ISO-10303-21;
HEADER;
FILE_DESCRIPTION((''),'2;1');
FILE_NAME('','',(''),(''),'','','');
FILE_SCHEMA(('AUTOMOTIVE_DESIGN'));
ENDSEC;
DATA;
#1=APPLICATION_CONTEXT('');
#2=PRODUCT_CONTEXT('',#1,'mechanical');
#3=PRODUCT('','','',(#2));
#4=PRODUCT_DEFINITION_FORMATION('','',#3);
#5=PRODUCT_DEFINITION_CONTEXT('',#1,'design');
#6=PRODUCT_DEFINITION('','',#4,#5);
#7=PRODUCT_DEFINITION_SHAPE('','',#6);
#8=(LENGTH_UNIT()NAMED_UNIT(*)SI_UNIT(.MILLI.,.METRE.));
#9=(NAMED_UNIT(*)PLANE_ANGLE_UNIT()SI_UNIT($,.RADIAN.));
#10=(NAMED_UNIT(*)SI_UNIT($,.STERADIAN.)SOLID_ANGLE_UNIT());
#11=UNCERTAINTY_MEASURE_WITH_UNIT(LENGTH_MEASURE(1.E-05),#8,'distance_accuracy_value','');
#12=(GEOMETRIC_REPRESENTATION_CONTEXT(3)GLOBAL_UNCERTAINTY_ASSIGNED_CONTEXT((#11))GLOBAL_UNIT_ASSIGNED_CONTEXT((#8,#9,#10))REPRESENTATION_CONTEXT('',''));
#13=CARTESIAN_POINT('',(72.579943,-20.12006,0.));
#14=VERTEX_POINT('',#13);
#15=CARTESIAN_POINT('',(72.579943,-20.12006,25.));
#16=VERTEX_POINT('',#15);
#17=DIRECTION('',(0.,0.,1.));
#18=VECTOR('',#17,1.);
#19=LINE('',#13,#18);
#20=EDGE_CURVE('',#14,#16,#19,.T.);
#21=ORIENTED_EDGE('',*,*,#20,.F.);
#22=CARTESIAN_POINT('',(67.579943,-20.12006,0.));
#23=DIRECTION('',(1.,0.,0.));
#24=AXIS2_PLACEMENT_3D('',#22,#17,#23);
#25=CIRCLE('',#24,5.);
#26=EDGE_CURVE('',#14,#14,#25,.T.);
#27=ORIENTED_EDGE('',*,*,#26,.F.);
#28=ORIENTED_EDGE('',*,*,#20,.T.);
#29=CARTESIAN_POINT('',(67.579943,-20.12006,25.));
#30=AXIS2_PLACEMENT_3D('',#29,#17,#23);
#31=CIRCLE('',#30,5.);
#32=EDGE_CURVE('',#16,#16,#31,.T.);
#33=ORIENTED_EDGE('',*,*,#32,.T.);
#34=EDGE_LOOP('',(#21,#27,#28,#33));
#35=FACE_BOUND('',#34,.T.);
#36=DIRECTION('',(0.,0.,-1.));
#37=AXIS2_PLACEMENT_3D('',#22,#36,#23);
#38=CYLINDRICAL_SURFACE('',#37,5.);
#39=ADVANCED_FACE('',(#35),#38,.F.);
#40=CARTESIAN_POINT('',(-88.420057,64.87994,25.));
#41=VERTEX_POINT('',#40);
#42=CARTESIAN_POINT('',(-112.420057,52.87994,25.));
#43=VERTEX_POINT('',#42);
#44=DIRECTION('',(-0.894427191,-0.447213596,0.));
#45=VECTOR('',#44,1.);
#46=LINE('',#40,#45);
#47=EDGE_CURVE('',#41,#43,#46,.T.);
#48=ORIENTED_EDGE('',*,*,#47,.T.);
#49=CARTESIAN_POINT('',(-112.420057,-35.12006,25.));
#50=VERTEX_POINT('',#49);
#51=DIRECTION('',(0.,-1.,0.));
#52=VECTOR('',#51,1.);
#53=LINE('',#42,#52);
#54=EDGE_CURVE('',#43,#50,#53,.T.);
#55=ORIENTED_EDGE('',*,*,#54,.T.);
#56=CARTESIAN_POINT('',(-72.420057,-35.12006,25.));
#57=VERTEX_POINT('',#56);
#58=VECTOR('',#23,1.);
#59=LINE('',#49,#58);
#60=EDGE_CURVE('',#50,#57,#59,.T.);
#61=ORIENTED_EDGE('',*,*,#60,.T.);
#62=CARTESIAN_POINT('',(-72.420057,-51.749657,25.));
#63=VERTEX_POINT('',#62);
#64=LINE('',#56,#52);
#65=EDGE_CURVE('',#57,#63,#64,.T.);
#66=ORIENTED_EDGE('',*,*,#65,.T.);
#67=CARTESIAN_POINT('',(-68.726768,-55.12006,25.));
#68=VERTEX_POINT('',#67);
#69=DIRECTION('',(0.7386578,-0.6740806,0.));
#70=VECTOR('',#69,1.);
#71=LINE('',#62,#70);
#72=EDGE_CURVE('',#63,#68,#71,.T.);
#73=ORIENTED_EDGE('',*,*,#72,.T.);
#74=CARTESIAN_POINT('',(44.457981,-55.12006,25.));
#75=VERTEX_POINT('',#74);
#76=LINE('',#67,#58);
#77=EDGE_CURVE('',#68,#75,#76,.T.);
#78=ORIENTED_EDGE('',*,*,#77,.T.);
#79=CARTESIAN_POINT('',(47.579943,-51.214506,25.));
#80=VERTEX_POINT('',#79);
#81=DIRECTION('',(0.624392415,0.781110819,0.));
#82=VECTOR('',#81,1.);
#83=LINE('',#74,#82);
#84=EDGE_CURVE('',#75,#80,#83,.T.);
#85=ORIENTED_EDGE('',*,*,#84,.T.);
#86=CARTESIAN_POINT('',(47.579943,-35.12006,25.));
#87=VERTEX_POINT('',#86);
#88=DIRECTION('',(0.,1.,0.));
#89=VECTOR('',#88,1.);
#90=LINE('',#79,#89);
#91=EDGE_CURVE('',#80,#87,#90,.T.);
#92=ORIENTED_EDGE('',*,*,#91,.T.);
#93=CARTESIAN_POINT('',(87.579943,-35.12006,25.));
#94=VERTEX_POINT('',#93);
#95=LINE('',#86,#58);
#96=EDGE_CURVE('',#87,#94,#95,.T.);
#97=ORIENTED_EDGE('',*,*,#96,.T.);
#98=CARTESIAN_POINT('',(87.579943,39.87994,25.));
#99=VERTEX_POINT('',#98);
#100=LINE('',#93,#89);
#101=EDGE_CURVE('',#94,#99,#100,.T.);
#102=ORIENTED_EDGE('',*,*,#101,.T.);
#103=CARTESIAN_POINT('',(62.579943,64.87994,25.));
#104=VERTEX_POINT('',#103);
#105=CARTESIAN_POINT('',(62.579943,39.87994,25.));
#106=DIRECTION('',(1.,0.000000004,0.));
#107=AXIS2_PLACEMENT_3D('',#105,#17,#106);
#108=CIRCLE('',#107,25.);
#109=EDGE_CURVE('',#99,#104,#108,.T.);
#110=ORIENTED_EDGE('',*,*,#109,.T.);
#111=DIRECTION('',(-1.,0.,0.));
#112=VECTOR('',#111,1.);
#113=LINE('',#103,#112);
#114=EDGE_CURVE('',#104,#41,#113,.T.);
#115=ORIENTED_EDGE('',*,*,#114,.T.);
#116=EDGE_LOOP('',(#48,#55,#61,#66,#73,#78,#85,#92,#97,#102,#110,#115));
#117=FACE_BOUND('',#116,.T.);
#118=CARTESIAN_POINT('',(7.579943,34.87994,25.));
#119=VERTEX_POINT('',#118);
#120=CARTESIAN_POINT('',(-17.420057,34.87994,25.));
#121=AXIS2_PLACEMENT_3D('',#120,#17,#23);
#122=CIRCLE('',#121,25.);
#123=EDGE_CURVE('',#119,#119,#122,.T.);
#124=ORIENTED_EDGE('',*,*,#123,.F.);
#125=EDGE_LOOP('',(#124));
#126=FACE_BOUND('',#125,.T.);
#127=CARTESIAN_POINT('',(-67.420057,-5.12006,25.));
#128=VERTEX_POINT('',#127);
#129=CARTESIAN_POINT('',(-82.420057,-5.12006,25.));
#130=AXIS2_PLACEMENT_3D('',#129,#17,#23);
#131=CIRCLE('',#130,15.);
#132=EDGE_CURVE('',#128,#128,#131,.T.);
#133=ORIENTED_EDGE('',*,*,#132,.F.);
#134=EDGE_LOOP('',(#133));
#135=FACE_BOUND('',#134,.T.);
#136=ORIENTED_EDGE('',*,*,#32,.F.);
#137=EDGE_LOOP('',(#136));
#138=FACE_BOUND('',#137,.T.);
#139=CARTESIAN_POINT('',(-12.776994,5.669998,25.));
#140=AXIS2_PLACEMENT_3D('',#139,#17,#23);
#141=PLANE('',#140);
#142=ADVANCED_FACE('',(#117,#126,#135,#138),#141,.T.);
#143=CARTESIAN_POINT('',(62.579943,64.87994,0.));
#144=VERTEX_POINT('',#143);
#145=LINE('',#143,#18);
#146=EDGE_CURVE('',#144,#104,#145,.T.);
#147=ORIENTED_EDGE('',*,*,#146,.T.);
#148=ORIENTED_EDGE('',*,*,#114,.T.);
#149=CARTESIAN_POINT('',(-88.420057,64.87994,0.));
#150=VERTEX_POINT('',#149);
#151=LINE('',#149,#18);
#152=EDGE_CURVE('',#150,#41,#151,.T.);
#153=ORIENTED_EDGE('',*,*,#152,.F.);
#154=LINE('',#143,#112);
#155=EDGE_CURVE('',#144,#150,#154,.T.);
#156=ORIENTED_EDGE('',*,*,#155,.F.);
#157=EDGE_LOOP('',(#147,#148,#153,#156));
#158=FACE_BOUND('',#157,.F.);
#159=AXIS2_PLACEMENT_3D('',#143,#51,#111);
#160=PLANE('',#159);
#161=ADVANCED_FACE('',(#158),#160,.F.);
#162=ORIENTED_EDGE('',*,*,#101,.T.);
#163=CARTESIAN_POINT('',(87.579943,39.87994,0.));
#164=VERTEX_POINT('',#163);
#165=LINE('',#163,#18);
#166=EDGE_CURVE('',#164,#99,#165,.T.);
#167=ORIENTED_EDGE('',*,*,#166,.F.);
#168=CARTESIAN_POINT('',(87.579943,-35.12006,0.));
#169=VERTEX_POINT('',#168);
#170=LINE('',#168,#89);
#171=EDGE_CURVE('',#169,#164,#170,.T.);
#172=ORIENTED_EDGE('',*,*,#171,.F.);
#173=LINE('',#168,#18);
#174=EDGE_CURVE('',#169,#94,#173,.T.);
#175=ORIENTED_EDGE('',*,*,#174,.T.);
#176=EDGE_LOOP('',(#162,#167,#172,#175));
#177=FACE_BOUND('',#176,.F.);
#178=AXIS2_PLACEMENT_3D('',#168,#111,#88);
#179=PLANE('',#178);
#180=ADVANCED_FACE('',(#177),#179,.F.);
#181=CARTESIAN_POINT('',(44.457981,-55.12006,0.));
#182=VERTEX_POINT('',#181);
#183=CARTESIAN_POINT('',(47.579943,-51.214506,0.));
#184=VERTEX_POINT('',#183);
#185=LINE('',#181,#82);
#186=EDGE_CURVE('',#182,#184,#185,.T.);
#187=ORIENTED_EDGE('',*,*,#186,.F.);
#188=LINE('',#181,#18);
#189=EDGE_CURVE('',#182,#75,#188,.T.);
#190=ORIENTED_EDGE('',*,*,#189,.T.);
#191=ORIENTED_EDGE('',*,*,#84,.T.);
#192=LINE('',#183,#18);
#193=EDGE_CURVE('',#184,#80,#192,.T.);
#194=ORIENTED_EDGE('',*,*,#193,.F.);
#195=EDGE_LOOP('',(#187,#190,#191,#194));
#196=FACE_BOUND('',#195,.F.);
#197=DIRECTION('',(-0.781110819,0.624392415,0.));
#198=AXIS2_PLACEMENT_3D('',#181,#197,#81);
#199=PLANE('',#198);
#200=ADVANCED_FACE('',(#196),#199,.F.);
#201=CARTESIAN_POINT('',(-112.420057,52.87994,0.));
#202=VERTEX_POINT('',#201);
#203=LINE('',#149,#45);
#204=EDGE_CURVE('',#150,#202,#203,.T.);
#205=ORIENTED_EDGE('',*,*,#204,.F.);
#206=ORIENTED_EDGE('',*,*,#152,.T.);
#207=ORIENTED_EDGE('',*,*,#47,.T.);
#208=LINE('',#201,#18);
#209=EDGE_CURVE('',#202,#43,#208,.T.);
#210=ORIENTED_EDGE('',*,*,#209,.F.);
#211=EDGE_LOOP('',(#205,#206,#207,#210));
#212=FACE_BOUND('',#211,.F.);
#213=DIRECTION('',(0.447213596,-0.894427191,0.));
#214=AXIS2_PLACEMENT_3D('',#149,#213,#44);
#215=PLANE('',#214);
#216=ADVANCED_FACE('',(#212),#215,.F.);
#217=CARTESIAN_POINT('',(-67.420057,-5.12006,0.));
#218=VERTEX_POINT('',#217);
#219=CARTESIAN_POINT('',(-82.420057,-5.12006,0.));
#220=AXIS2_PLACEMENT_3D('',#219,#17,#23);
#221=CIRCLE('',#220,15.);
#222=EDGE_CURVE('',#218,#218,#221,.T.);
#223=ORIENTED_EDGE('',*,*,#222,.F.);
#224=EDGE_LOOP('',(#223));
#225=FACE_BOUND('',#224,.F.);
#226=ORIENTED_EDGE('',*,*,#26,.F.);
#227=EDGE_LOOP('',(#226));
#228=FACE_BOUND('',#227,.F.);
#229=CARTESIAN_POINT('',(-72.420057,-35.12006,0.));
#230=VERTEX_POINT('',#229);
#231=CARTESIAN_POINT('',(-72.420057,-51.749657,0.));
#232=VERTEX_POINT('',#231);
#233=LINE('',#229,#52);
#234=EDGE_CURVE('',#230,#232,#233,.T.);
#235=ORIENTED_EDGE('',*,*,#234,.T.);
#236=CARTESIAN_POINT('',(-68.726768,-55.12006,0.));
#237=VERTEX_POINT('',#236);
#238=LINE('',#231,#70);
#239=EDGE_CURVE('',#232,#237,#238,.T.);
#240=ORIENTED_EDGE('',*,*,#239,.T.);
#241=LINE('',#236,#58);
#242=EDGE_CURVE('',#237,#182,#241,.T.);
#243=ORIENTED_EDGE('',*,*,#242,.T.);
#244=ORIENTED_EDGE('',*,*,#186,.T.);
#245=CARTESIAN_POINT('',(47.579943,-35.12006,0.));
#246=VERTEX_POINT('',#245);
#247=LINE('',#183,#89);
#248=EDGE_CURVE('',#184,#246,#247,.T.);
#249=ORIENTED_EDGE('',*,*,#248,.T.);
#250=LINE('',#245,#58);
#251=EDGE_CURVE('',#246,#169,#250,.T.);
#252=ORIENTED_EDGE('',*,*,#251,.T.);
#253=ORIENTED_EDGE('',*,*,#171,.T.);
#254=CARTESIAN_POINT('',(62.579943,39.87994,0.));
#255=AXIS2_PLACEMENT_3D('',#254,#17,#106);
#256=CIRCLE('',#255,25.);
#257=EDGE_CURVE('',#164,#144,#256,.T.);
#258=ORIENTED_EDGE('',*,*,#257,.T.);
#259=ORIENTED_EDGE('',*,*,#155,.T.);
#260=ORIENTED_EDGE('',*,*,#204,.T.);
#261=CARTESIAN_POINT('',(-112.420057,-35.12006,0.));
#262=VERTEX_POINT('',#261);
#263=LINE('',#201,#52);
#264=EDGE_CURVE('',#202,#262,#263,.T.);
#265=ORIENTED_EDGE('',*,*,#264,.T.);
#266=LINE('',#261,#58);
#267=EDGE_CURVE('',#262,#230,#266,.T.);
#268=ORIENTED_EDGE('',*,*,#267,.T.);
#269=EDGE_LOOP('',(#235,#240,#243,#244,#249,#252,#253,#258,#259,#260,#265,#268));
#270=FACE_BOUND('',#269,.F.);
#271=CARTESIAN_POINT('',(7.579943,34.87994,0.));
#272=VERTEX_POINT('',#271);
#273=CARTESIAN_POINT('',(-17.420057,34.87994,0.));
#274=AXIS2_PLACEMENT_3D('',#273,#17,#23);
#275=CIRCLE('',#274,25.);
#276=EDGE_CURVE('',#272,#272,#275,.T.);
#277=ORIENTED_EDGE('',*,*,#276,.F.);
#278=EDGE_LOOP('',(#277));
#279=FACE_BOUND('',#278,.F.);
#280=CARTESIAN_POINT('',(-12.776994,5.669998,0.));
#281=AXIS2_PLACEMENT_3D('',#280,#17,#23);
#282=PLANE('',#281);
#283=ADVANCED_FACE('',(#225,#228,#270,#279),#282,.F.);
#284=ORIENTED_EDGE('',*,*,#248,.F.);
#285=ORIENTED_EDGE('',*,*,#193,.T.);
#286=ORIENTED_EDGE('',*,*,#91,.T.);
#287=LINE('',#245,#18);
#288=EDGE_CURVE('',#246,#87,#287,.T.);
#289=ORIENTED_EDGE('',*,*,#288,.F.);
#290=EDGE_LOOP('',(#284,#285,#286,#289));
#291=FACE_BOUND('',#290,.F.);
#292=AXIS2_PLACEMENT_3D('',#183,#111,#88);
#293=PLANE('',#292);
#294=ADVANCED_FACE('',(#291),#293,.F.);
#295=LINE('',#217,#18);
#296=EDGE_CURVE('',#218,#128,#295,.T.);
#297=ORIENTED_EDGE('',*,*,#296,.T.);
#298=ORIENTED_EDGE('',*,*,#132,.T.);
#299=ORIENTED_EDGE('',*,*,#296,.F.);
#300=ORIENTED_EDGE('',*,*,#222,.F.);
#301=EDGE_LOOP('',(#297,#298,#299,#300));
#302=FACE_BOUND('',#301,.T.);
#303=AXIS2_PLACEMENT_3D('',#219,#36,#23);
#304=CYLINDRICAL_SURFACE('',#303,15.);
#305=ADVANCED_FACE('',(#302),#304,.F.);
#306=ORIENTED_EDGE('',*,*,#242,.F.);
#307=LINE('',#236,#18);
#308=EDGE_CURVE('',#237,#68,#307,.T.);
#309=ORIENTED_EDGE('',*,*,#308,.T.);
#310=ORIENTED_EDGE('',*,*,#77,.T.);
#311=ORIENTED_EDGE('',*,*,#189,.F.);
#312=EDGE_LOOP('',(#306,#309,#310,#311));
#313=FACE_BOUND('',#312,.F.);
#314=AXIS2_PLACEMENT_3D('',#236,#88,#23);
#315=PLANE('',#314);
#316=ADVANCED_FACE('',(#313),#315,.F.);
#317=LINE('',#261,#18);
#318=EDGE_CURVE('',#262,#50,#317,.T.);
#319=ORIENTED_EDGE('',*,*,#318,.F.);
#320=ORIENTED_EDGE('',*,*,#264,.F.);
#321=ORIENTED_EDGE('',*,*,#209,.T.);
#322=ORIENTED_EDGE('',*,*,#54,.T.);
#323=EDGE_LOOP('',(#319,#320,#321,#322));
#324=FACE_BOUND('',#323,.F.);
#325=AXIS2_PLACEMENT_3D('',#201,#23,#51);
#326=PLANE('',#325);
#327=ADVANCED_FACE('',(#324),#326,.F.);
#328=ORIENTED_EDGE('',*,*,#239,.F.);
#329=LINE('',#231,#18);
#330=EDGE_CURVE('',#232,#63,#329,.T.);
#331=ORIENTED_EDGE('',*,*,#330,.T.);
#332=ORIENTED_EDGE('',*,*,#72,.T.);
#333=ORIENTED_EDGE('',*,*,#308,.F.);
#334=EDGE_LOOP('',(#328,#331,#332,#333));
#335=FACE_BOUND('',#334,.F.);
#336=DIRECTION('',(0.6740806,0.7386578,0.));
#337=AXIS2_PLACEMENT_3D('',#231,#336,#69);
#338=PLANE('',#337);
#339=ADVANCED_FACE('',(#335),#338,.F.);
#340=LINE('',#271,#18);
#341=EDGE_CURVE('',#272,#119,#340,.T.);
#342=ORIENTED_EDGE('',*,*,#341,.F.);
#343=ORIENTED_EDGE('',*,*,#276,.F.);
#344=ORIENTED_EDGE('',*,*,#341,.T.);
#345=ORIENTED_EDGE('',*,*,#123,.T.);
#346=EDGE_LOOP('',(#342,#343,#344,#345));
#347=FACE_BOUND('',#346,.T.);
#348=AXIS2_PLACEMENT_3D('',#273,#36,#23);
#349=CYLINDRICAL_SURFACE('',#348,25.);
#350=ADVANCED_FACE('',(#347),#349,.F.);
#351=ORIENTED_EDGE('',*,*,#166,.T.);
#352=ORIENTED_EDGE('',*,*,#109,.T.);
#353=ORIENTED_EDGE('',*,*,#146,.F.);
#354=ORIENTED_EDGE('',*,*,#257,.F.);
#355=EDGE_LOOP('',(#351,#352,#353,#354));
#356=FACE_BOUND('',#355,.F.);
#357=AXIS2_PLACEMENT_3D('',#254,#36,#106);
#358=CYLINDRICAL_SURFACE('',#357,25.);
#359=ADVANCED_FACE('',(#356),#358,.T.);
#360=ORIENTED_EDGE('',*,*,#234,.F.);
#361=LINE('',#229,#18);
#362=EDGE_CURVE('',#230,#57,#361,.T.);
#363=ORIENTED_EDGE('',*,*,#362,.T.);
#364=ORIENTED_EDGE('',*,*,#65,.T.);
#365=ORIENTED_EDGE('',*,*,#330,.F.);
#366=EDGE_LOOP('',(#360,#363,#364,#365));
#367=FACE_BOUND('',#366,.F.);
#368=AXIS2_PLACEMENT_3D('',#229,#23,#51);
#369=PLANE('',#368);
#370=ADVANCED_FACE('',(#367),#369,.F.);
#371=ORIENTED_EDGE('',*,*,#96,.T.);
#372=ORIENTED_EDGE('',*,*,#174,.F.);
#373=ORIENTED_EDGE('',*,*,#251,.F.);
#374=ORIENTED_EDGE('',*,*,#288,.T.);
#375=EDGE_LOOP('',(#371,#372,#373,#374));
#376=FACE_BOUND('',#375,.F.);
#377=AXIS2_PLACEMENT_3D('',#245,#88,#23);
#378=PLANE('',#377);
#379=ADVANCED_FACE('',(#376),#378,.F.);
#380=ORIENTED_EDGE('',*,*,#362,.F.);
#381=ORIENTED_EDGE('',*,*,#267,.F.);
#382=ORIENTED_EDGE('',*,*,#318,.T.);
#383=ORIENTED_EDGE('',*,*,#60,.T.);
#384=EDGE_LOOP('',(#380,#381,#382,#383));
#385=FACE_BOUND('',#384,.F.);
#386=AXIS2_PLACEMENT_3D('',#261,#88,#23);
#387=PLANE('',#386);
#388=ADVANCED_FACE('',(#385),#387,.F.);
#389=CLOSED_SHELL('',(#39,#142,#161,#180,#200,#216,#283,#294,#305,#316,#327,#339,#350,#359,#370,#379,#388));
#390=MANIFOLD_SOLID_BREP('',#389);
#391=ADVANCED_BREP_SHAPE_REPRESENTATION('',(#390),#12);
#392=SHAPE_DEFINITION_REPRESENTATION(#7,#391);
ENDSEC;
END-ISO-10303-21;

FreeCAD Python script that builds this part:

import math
import FreeCAD as App
import Part
import Sketcher
Q = App.Units.Quantity

doc = App.newDocument("Part")
body = doc.addObject("PartDesign::Body", "Body")

# Sketch on XY plane
sketch1 = body.newObject("Sketcher::SketchObject", "Sketch")
sketch1.AttachmentSupport = (doc.getObject("XY_Plane"), [""])
sketch1.MapMode = "FlatFace"
sketch1.addGeometry([
    Part.LineSegment(App.Vector(-88.4, 64.9, 0), App.Vector(-112.4, 52.9, 0)),  # 0
    Part.LineSegment(App.Vector(-112.4, 52.9, 0), App.Vector(-112.4, -35.1, 0)),  # 1
    Part.LineSegment(App.Vector(-112.4, -35.1, 0), App.Vector(-72.4, -35.1, 0)),  # 2
    Part.LineSegment(App.Vector(-72.4, -35.1, 0), App.Vector(-72.4, -51.7, 0)),  # 3
    Part.LineSegment(App.Vector(-72.4, -51.7, 0), App.Vector(-68.7, -55.1, 0)),  # 4
    Part.LineSegment(App.Vector(-68.7, -55.1, 0), App.Vector(44.5, -55.1, 0)),  # 5
    Part.LineSegment(App.Vector(44.5, -55.1, 0), App.Vector(47.6, -51.2, 0)),  # 6
    Part.LineSegment(App.Vector(47.6, -51.2, 0), App.Vector(47.6, -35.1, 0)),  # 7
    Part.LineSegment(App.Vector(47.6, -35.1, 0), App.Vector(87.6, -35.1, 0)),  # 8
    Part.LineSegment(App.Vector(87.6, -35.1, 0), App.Vector(87.6, 39.9, 0)),  # 9
    Part.ArcOfCircle(Part.Circle(App.Vector(62.6, 39.9, 0), App.Vector(0, 0, 1), 25), math.radians(0), math.radians(90)),  # 10
    Part.LineSegment(App.Vector(62.6, 64.9, 0), App.Vector(-88.4, 64.9, 0)),  # 11
    Part.Circle(App.Vector(-82.4, -5.1, 0), App.Vector(0, 0, 1), 15),  # 12
    Part.Circle(App.Vector(67.6, -20.1, 0), App.Vector(0, 0, 1), 5),  # 13
    Part.Circle(App.Vector(-17.4, 34.9, 0), App.Vector(0, 0, 1), 25),  # 14
], False)
sketch1.addConstraint([
    Sketcher.Constraint("Coincident", 0, 2, 1, 1),
    Sketcher.Constraint("Coincident", 1, 2, 2, 1),
    Sketcher.Constraint("Coincident", 2, 2, 3, 1),
    Sketcher.Constraint("Coincident", 3, 2, 4, 1),
    Sketcher.Constraint("Coincident", 4, 2, 5, 1),
    Sketcher.Constraint("Coincident", 5, 2, 6, 1),
    Sketcher.Constraint("Coincident", 6, 2, 7, 1),
    Sketcher.Constraint("Coincident", 7, 2, 8, 1),
    Sketcher.Constraint("Coincident", 8, 2, 9, 1),
    Sketcher.Constraint("Tangent", 9, 2, 10, 1),
    Sketcher.Constraint("Tangent", 10, 2, 11, 1),
    Sketcher.Constraint("Coincident", 11, 2, 0, 1),
    Sketcher.Constraint("Vertical", 1),
    Sketcher.Constraint("Horizontal", 2),
    Sketcher.Constraint("Vertical", 3),
    Sketcher.Constraint("Horizontal", 5),
    Sketcher.Constraint("Vertical", 7),
    Sketcher.Constraint("Horizontal", 8),
    Sketcher.Constraint("Vertical", 9),
    Sketcher.Constraint("Horizontal", 11),
    Sketcher.Constraint("Equal", 10, 14),
    Sketcher.Constraint("Horizontal", 2, 2, 7, 2),
    Sketcher.Constraint("Equal", 2, 8),
    Sketcher.Constraint("Equal", 4, 6),
    Sketcher.Constraint("Diameter", 12, Q("30 mm")),
    Sketcher.Constraint("Diameter", 13, Q("10 mm")),
    Sketcher.Constraint("Diameter", 14, Q("50 mm")),
    Sketcher.Constraint("DistanceX", 2, 1, 2, 2, Q("40 mm")),
    Sketcher.Constraint("DistanceX", 11, 2, 11, 1, Q("151 mm")),
    Sketcher.Constraint("DistanceY", 1, 2, 1, 1, Q("88 mm")),
    Sketcher.Constraint("DistanceY", 9, 1, 9, 2, Q("75 mm")),
    Sketcher.Constraint("Distance", 4, Q("5 mm")),
    Sketcher.Constraint("DistanceX", 12, 3, 10, 3, Q("145 mm")),
    Sketcher.Constraint("DistanceY", 12, 3, 10, 3, Q("45 mm")),
    Sketcher.Constraint("DistanceX", 10, 3, 13, 3, Q("5 mm")),
    Sketcher.Constraint("DistanceY", 13, 3, 10, 3, Q("60 mm")),
    Sketcher.Constraint("DistanceX", 12, 3, 14, 3, Q("65 mm")),
    Sketcher.Constraint("DistanceY", 12, 3, 14, 3, Q("40 mm")),
    Sketcher.Constraint("DistanceX", 0, 2, 12, 3, Q("30 mm")),
    Sketcher.Constraint("DistanceY", 4, 2, 2, 2, Q("20 mm")),
    Sketcher.Constraint("DistanceX", 5, 1, 5, 2, Q("113.184749 mm")),
    Sketcher.Constraint("DistanceY", 3, 2, 3, 1, Q("16.629597 mm")),
    Sketcher.Constraint("DistanceY", -1, 1, 10, 3, Q("39.87994 mm")),
    Sketcher.Constraint("DistanceX", 4, 2, -1, 1, Q("68.726768 mm")),
])
pad1 = body.newObject("PartDesign::Pad", "Pad")
pad1.Profile = sketch1
pad1.Length = 25

doc.recompute()
